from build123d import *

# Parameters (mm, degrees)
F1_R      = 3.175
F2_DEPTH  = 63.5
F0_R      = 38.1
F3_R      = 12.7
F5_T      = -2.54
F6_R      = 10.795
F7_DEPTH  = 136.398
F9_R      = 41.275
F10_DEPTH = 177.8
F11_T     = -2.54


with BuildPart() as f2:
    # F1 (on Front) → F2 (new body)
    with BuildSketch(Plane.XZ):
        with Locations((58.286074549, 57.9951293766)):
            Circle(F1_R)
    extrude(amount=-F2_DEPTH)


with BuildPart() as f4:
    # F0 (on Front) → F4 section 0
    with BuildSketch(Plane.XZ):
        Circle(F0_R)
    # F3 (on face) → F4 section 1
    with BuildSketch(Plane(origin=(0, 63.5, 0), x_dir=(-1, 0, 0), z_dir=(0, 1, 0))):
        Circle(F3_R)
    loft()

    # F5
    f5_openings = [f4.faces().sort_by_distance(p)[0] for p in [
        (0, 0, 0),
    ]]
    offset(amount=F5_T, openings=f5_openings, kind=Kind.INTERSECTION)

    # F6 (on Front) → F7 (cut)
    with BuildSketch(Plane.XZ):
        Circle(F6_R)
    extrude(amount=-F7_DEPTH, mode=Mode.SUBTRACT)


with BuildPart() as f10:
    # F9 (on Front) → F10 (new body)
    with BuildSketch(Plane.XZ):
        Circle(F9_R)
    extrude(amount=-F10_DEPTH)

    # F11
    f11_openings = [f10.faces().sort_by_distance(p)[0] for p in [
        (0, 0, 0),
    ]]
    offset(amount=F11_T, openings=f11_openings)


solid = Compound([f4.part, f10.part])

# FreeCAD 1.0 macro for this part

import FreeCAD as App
import Part
import Sketcher

V = App.Vector
Q = App.Units.Quantity


def faces_at(feature, points):
    """Names of the faces that lie closest to the given points."""
    faces = feature.Shape.Faces
    near = lambda p: min(range(len(faces)), key=lambda i: faces[i].distToShape(Part.Vertex(*p))[0])
    return sorted({f"Face{near(p) + 1}" for p in points})

doc = App.newDocument("Part")
body = doc.addObject("PartDesign::Body", "Body")

sketch1 = body.newObject("Sketcher::SketchObject", "Sketch")
sketch1.AttachmentSupport = (doc.getObject("XZ_Plane"), [""])
sketch1.MapMode = "FlatFace"
sketch1.addGeometry(Part.Circle(V(58.286075, 57.995129, 0), V(0, 0, 1), 3.175), False)
sketch1.addConstraint([
    Sketcher.Constraint("Diameter", 0, Q("0.25 in")),
    Sketcher.Constraint("DistanceY", -1, 1, 0, 3, 57.995129),
    Sketcher.Constraint("DistanceX", -1, 1, 0, 3, 58.286075),
])
pad1 = body.newObject("PartDesign::Pad", "Pad")
pad1.Profile = sketch1
pad1.Length = Q("2.5 in")
pad1.Reversed = True
body2 = doc.addObject("PartDesign::Body", "Body001")

sketch2 = body2.newObject("Sketcher::SketchObject", "Sketch001")
sketch2.AttachmentSupport = (doc.getObject("XZ_Plane001"), [""])
sketch2.MapMode = "FlatFace"
sketch2.addGeometry(Part.Circle(V(0, 0, 0), V(0, 0, 1), 38.1), False)
sketch2.addConstraint([
    Sketcher.Constraint("Coincident", 0, 3, -1, 1),
    Sketcher.Constraint("Diameter", 0, Q("3 in")),
])

sketch3 = body2.newObject("Sketcher::SketchObject", "Sketch002")
sketch3.AttachmentSupport = (doc.getObject("XZ_Plane001"), [""])
sketch3.MapMode = "FlatFace"
sketch3.AttachmentOffset = App.Placement(V(0, 0, -2.5 * 25.4), App.Rotation())
sketch3.addGeometry(Part.Circle(V(0, 0, 0), V(0, 0, 1), 12.7), False)
sketch3.addConstraint([
    Sketcher.Constraint("Coincident", 0, 3, -1, 1),
    Sketcher.Constraint("Diameter", 0, Q("1 in")),
])

additiveloft = body2.newObject("PartDesign::AdditiveLoft", "AdditiveLoft")
additiveloft.Profile = sketch2
additiveloft.Sections = [sketch3]
doc.recompute()

thickness = body2.newObject("PartDesign::Thickness", "Thickness")
thickness.Base = (additiveloft, faces_at(additiveloft, [(0, 0, 0)]))
thickness.Value = Q("0.1 in")
thickness.Reversed = True
thickness.Join = "Intersection"

sketch4 = body2.newObject("Sketcher::SketchObject", "Sketch003")
sketch4.AttachmentSupport = (doc.getObject("XZ_Plane001"), [""])
sketch4.MapMode = "FlatFace"
sketch4.addGeometry(Part.Circle(V(0, 0, 0), V(0, 0, 1), 10.795), False)
sketch4.addConstraint([
    Sketcher.Constraint("Coincident", 0, 3, -1, 1),
    Sketcher.Constraint("Diameter", 0, Q("0.85 in")),
])
pocket1 = body2.newObject("PartDesign::Pocket", "Pocket")
pocket1.Profile = sketch4
pocket1.Length = Q("5.37 in")
body3 = doc.addObject("PartDesign::Body", "Body002")

sketch5 = body3.newObject("Sketcher::SketchObject", "Sketch004")
sketch5.AttachmentSupport = (doc.getObject("XZ_Plane002"), [""])
sketch5.MapMode = "FlatFace"
sketch5.addGeometry(Part.Circle(V(0, 0, 0), V(0, 0, 1), 41.275), False)
sketch5.addConstraint([
    Sketcher.Constraint("Coincident", 0, 3, -1, 1),
    Sketcher.Constraint("Diameter", 0, Q("3.25 in")),
])
pad2 = body3.newObject("PartDesign::Pad", "Pad001")
pad2.Profile = sketch5
pad2.Length = Q("7 in")
pad2.Reversed = True
doc.recompute()

thickness2 = body3.newObject("PartDesign::Thickness", "Thickness001")
thickness2.Base = (pad2, faces_at(pad2, [(0, 0, 0)]))
thickness2.Value = Q("0.1 in")
thickness2.Reversed = True
thickness2.Join = "Arc"
body.Visibility = False

doc.recompute()
